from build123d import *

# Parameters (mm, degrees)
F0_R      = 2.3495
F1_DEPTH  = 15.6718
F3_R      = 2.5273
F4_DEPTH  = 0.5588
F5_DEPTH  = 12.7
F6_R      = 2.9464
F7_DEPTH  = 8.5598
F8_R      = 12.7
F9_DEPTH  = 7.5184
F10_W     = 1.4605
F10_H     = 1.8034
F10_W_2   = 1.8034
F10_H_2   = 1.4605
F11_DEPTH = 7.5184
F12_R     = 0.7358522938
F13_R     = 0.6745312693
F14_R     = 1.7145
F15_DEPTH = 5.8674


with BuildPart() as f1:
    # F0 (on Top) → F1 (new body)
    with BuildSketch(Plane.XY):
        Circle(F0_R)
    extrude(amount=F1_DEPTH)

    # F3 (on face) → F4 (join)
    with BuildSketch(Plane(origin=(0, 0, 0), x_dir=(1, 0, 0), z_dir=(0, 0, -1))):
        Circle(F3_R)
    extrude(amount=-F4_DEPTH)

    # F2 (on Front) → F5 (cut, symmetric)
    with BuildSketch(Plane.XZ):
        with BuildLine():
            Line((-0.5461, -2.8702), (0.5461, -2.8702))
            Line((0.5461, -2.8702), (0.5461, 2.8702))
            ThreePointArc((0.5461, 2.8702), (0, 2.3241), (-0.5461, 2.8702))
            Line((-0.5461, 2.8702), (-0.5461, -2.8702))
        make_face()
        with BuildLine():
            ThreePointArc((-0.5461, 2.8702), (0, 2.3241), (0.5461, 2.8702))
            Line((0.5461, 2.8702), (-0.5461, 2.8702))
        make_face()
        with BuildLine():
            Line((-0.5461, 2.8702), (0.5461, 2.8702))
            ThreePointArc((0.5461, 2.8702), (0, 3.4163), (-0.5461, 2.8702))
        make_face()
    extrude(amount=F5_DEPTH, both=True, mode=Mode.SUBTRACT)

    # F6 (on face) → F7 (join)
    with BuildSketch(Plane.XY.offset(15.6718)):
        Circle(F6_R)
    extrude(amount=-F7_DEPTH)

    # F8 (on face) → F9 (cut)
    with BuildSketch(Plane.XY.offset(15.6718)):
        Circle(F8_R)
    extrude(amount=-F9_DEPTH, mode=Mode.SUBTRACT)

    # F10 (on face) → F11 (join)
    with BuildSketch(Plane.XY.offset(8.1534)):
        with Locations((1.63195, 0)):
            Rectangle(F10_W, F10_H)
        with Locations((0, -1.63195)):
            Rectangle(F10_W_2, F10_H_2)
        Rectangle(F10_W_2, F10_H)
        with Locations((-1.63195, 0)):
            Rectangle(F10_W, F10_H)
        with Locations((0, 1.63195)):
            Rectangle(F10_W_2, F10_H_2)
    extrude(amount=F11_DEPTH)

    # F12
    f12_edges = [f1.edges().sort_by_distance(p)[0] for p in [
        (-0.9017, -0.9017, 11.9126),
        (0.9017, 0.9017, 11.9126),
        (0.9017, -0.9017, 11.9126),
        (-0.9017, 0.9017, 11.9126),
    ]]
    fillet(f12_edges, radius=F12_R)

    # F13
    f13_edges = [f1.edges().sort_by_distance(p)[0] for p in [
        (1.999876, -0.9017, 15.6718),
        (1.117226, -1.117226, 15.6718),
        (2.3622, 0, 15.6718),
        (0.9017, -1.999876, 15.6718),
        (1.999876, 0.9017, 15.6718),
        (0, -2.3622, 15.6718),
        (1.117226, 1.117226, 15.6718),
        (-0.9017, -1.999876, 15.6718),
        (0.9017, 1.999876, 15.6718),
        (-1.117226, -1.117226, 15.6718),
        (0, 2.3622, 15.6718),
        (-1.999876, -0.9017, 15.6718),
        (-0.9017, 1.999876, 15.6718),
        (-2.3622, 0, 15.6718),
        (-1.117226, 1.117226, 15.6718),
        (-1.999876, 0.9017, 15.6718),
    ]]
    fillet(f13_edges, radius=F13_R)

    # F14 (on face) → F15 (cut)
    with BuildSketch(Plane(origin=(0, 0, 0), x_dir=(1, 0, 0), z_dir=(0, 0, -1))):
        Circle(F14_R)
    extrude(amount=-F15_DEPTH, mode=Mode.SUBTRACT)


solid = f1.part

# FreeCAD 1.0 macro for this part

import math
import FreeCAD as App
import Part
import Sketcher
Q = App.Units.Quantity


def edges_at(feature, points):
    """Names of the edges that pass closest to the given points."""
    edges = feature.Shape.Edges
    near = lambda p: min(range(len(edges)), key=lambda i: edges[i].distToShape(Part.Vertex(*p))[0])
    return sorted({f"Edge{near(p) + 1}" for p in points})

doc = App.newDocument("Part")
params = doc.addObject("Spreadsheet::Sheet", "Params")
for row, (alias, value) in enumerate([
    ("sketch1_diameter", "0.185 in"),
    ("pad1_length", "0.617 in"),
    ("sketch2_diameter", "0.199 in"),
    ("pad2_length", "0.022 in"),
    ("sketch3_height", "0.226 in"),
    ("pocket1_length", "1 in"),
    ("sketch4_diameter", "0.232 in"),
    ("pad3_length", "0.337 in"),
    ("sketch5_diameter", "1 in"),
    ("pocket2_length", "0.296 in"),
    ("sketch6_width", "0.071 in"),
    ("pad4_length", "0.296 in"),
    ("fillet_radius", "0.735852 mm"),
    ("fillet2_radius", "0.674531 mm"),
    ("sketch7_diameter", "0.135 in"),
    ("pocket3_length", "0.231 in"),
], start=1):
    params.set(f"A{row}", alias)
    params.set(f"B{row}", "=" + value)
    params.setAlias(f"B{row}", alias)

body = doc.addObject("PartDesign::Body", "Body")

# Sketch on XY plane
sketch1 = body.newObject("Sketcher::SketchObject", "Sketch")
sketch1.AttachmentSupport = (doc.getObject("XY_Plane"), [""])
sketch1.MapMode = "FlatFace"
sketch1.addGeometry(Part.Circle(App.Vector(0, 0, 0), App.Vector(0, 0, 1), 2.3), False)
sketch1.addConstraint([
    Sketcher.Constraint("Coincident", 0, 3, -1, 1),
    Sketcher.Constraint("Diameter", 0, Q("0.185 in")),
])
sketch1.setExpression("Constraints[1]", "Params.sketch1_diameter")
pad1 = body.newObject("PartDesign::Pad", "Pad")
pad1.Profile = sketch1
pad1.setExpression("Length", "Params.pad1_length")

# Sketch on XY plane
sketch2 = body.newObject("Sketcher::SketchObject", "Sketch001")
sketch2.AttachmentSupport = (doc.getObject("XY_Plane"), [""])
sketch2.MapMode = "FlatFace"
sketch2.addGeometry(Part.Circle(App.Vector(0, 0, 0), App.Vector(0, 0, 1), 2.5), False)
sketch2.addConstraint([
    Sketcher.Constraint("Coincident", 0, 3, -1, 1),
    Sketcher.Constraint("Diameter", 0, Q("0.199 in")),
])
sketch2.setExpression("Constraints[1]", "Params.sketch2_diameter")
pad2 = body.newObject("PartDesign::Pad", "Pad001")
pad2.Profile = sketch2
pad2.setExpression("Length", "Params.pad2_length")

# Sketch on XZ plane
sketch3 = body.newObject("Sketcher::SketchObject", "Sketch002")
sketch3.AttachmentSupport = (doc.getObject("XZ_Plane"), [""])
sketch3.MapMode = "FlatFace"
sketch3.addGeometry([
    Part.LineSegment(App.Vector(-0.5, -2.9, 0), App.Vector(0.5, -2.9, 0)),
    Part.LineSegment(App.Vector(0.5, -2.9, 0), App.Vector(0.5, 2.9, 0)),
    Part.ArcOfCircle(Part.Circle(App.Vector(0, 2.9, 0), App.Vector(0, 0, 1), 0.5), math.radians(0), math.radians(180)),
    Part.LineSegment(App.Vector(-0.5, 2.9, 0), App.Vector(-0.5, -2.9, 0)),
], False)
sketch3.addConstraint([
    Sketcher.Constraint("Coincident", 0, 2, 1, 1),
    Sketcher.Constraint("Tangent", 1, 2, 2, 1),
    Sketcher.Constraint("Tangent", 2, 2, 3, 1),
    Sketcher.Constraint("Coincident", 3, 2, 0, 1),
    Sketcher.Constraint("Horizontal", 0),
    Sketcher.Constraint("Vertical", 1),
    Sketcher.Constraint("Vertical", 3),
    Sketcher.Constraint("Symmetric", 0, 2, 2, 2, -1, 1),
    Sketcher.Constraint("Radius", 2, Q("0.0215 in")),
    Sketcher.Constraint("DistanceY", 1, 1, 1, 2, Q("0.226 in")),
])
sketch3.setExpression("Constraints[9]", "Params.sketch3_height")
pocket1 = body.newObject("PartDesign::Pocket", "Pocket")
pocket1.Profile = sketch3
pocket1.setExpression("Length", "Params.pocket1_length")
pocket1.Midplane = True

# Sketch on XY plane
sketch4 = body.newObject("Sketcher::SketchObject", "Sketch003")
sketch4.AttachmentSupport = (doc.getObject("XY_Plane"), [""])
sketch4.MapMode = "FlatFace"
sketch4.AttachmentOffset = App.Placement(App.Vector(0, 0, 0.617 * 25.4), App.Rotation())
sketch4.addGeometry(Part.Circle(App.Vector(0, 0, 0), App.Vector(0, 0, 1), 2.9), False)
sketch4.addConstraint([
    Sketcher.Constraint("Coincident", 0, 3, -1, 1),
    Sketcher.Constraint("Diameter", 0, Q("0.232 in")),
])
sketch4.setExpression("Constraints[1]", "Params.sketch4_diameter")
pad3 = body.newObject("PartDesign::Pad", "Pad002")
pad3.Profile = sketch4
pad3.setExpression("Length", "Params.pad3_length")
pad3.Reversed = True

# Sketch on XY plane
sketch5 = body.newObject("Sketcher::SketchObject", "Sketch004")
sketch5.AttachmentSupport = (doc.getObject("XY_Plane"), [""])
sketch5.MapMode = "FlatFace"
sketch5.AttachmentOffset = App.Placement(App.Vector(0, 0, 0.617 * 25.4), App.Rotation())
sketch5.addGeometry(Part.Circle(App.Vector(0, 0, 0), App.Vector(0, 0, 1), 13), False)
sketch5.addConstraint([
    Sketcher.Constraint("Coincident", 0, 3, -1, 1),
    Sketcher.Constraint("Diameter", 0, Q("1 in")),
])
sketch5.setExpression("Constraints[1]", "Params.sketch5_diameter")
pocket2 = body.newObject("PartDesign::Pocket", "Pocket001")
pocket2.Profile = sketch5
pocket2.setExpression("Length", "Params.pocket2_length")

# Sketch on XY plane
sketch6 = body.newObject("Sketcher::SketchObject", "Sketch005")
sketch6.AttachmentSupport = (doc.getObject("XY_Plane"), [""])
sketch6.MapMode = "FlatFace"
sketch6.AttachmentOffset = App.Placement(App.Vector(0, 0, 0.321 * 25.4), App.Rotation())
sketch6.addGeometry([
    Part.LineSegment(App.Vector(0.9, -0.9, 0), App.Vector(2.4, -0.9, 0)),  # 0
    Part.LineSegment(App.Vector(2.4, -0.9, 0), App.Vector(2.4, 0.9, 0)),  # 1
    Part.LineSegment(App.Vector(2.4, 0.9, 0), App.Vector(0.9, 0.9, 0)),  # 2
    Part.LineSegment(App.Vector(0.9, 0.9, 0), App.Vector(0.9, 2.4, 0)),  # 3
    Part.LineSegment(App.Vector(0.9, 2.4, 0), App.Vector(-0.9, 2.4, 0)),  # 4
    Part.LineSegment(App.Vector(-0.9, 2.4, 0), App.Vector(-0.9, 0.9, 0)),  # 5
    Part.LineSegment(App.Vector(-0.9, 0.9, 0), App.Vector(-2.4, 0.9, 0)),  # 6
    Part.LineSegment(App.Vector(-2.4, 0.9, 0), App.Vector(-2.4, -0.9, 0)),  # 7
    Part.LineSegment(App.Vector(-2.4, -0.9, 0), App.Vector(-0.9, -0.9, 0)),  # 8
    Part.LineSegment(App.Vector(-0.9, -0.9, 0), App.Vector(-0.9, -2.4, 0)),  # 9
    Part.LineSegment(App.Vector(-0.9, -2.4, 0), App.Vector(0.9, -2.4, 0)),  # 10
    Part.LineSegment(App.Vector(0.9, -2.4, 0), App.Vector(0.9, -0.9, 0)),  # 11
], False)
sketch6.addConstraint([
    Sketcher.Constraint("Coincident", 0, 2, 1, 1),
    Sketcher.Constraint("Coincident", 1, 2, 2, 1),
    Sketcher.Constraint("Coincident", 2, 2, 3, 1),
    Sketcher.Constraint("Coincident", 3, 2, 4, 1),
    Sketcher.Constraint("Coincident", 4, 2, 5, 1),
    Sketcher.Constraint("Coincident", 5, 2, 6, 1),
    Sketcher.Constraint("Coincident", 6, 2, 7, 1),
    Sketcher.Constraint("Coincident", 7, 2, 8, 1),
    Sketcher.Constraint("Coincident", 8, 2, 9, 1),
    Sketcher.Constraint("Coincident", 9, 2, 10, 1),
    Sketcher.Constraint("Coincident", 10, 2, 11, 1),
    Sketcher.Constraint("Coincident", 11, 2, 0, 1),
    Sketcher.Constraint("Horizontal", 0),
    Sketcher.Constraint("Vertical", 1),
    Sketcher.Constraint("Horizontal", 2),
    Sketcher.Constraint("Vertical", 3),
    Sketcher.Constraint("Horizontal", 4),
    Sketcher.Constraint("Vertical", 5),
    Sketcher.Constraint("Horizontal", 6),
    Sketcher.Constraint("Vertical", 7),
    Sketcher.Constraint("Horizontal", 8),
    Sketcher.Constraint("Vertical", 9),
    Sketcher.Constraint("Horizontal", 10),
    Sketcher.Constraint("Vertical", 11),
    Sketcher.Constraint("Symmetric", 0, 2, 6, 2, -1, 1),
    Sketcher.Constraint("Symmetric", 2, 2, 8, 2, -1, 1),
    Sketcher.Constraint("Symmetric", 4, 2, 10, 2, -1, 1),
    Sketcher.Constraint("Symmetric", 2, 2, 5, 2, -2),
    Sketcher.Constraint("Equal", 10, 1),
    Sketcher.Constraint("Equal", 8, 3),
    Sketcher.Constraint("DistanceX", 4, 2, 4, 1, Q("0.071 in")),
    Sketcher.Constraint("DistanceX", 0, 1, 0, 2, Q("0.0575 in")),
])
sketch6.setExpression("Constraints[30]", "Params.sketch6_width")
pad4 = body.newObject("PartDesign::Pad", "Pad003")
pad4.Profile = sketch6
pad4.setExpression("Length", "Params.pad4_length")
doc.recompute()

fillet = body.newObject("PartDesign::Fillet", "Fillet")
fillet.Base = (pad4, edges_at(pad4, [
    (-0.902, -0.902, 11.913),
    (0.902, 0.902, 11.913),
    (0.902, -0.902, 11.913),
    (-0.902, 0.902, 11.913),
]))
fillet.setExpression("Radius", "Params.fillet_radius")
doc.recompute()

fillet2 = body.newObject("PartDesign::Fillet", "Fillet001")
fillet2.Base = (fillet, edges_at(fillet, [
    (2, -0.902, 15.672),
    (1.117, -1.117, 15.672),
    (2.362, 0, 15.672),
    (0.902, -2, 15.672),
    (2, 0.902, 15.672),
    (0, -2.362, 15.672),
    (1.117, 1.117, 15.672),
    (-0.902, -2, 15.672),
    (0.902, 2, 15.672),
    (-1.117, -1.117, 15.672),
    (0, 2.362, 15.672),
    (-2, -0.902, 15.672),
    (-0.902, 2, 15.672),
    (-2.362, 0, 15.672),
    (-1.117, 1.117, 15.672),
    (-2, 0.902, 15.672),
]))
fillet2.setExpression("Radius", "Params.fillet2_radius")

# Sketch on XY plane
sketch7 = body.newObject("Sketcher::SketchObject", "Sketch006")
sketch7.AttachmentSupport = (doc.getObject("XY_Plane"), [""])
sketch7.MapMode = "FlatFace"
sketch7.addGeometry(Part.Circle(App.Vector(0, 0, 0), App.Vector(0, 0, 1), 1.7), False)
sketch7.addConstraint([
    Sketcher.Constraint("Coincident", 0, 3, -1, 1),
    Sketcher.Constraint("Diameter", 0, Q("0.135 in")),
])
sketch7.setExpression("Constraints[1]", "Params.sketch7_diameter")
pocket3 = body.newObject("PartDesign::Pocket", "Pocket002")
pocket3.Profile = sketch7
pocket3.setExpression("Length", "Params.pocket3_length")
pocket3.Reversed = True

doc.recompute()
